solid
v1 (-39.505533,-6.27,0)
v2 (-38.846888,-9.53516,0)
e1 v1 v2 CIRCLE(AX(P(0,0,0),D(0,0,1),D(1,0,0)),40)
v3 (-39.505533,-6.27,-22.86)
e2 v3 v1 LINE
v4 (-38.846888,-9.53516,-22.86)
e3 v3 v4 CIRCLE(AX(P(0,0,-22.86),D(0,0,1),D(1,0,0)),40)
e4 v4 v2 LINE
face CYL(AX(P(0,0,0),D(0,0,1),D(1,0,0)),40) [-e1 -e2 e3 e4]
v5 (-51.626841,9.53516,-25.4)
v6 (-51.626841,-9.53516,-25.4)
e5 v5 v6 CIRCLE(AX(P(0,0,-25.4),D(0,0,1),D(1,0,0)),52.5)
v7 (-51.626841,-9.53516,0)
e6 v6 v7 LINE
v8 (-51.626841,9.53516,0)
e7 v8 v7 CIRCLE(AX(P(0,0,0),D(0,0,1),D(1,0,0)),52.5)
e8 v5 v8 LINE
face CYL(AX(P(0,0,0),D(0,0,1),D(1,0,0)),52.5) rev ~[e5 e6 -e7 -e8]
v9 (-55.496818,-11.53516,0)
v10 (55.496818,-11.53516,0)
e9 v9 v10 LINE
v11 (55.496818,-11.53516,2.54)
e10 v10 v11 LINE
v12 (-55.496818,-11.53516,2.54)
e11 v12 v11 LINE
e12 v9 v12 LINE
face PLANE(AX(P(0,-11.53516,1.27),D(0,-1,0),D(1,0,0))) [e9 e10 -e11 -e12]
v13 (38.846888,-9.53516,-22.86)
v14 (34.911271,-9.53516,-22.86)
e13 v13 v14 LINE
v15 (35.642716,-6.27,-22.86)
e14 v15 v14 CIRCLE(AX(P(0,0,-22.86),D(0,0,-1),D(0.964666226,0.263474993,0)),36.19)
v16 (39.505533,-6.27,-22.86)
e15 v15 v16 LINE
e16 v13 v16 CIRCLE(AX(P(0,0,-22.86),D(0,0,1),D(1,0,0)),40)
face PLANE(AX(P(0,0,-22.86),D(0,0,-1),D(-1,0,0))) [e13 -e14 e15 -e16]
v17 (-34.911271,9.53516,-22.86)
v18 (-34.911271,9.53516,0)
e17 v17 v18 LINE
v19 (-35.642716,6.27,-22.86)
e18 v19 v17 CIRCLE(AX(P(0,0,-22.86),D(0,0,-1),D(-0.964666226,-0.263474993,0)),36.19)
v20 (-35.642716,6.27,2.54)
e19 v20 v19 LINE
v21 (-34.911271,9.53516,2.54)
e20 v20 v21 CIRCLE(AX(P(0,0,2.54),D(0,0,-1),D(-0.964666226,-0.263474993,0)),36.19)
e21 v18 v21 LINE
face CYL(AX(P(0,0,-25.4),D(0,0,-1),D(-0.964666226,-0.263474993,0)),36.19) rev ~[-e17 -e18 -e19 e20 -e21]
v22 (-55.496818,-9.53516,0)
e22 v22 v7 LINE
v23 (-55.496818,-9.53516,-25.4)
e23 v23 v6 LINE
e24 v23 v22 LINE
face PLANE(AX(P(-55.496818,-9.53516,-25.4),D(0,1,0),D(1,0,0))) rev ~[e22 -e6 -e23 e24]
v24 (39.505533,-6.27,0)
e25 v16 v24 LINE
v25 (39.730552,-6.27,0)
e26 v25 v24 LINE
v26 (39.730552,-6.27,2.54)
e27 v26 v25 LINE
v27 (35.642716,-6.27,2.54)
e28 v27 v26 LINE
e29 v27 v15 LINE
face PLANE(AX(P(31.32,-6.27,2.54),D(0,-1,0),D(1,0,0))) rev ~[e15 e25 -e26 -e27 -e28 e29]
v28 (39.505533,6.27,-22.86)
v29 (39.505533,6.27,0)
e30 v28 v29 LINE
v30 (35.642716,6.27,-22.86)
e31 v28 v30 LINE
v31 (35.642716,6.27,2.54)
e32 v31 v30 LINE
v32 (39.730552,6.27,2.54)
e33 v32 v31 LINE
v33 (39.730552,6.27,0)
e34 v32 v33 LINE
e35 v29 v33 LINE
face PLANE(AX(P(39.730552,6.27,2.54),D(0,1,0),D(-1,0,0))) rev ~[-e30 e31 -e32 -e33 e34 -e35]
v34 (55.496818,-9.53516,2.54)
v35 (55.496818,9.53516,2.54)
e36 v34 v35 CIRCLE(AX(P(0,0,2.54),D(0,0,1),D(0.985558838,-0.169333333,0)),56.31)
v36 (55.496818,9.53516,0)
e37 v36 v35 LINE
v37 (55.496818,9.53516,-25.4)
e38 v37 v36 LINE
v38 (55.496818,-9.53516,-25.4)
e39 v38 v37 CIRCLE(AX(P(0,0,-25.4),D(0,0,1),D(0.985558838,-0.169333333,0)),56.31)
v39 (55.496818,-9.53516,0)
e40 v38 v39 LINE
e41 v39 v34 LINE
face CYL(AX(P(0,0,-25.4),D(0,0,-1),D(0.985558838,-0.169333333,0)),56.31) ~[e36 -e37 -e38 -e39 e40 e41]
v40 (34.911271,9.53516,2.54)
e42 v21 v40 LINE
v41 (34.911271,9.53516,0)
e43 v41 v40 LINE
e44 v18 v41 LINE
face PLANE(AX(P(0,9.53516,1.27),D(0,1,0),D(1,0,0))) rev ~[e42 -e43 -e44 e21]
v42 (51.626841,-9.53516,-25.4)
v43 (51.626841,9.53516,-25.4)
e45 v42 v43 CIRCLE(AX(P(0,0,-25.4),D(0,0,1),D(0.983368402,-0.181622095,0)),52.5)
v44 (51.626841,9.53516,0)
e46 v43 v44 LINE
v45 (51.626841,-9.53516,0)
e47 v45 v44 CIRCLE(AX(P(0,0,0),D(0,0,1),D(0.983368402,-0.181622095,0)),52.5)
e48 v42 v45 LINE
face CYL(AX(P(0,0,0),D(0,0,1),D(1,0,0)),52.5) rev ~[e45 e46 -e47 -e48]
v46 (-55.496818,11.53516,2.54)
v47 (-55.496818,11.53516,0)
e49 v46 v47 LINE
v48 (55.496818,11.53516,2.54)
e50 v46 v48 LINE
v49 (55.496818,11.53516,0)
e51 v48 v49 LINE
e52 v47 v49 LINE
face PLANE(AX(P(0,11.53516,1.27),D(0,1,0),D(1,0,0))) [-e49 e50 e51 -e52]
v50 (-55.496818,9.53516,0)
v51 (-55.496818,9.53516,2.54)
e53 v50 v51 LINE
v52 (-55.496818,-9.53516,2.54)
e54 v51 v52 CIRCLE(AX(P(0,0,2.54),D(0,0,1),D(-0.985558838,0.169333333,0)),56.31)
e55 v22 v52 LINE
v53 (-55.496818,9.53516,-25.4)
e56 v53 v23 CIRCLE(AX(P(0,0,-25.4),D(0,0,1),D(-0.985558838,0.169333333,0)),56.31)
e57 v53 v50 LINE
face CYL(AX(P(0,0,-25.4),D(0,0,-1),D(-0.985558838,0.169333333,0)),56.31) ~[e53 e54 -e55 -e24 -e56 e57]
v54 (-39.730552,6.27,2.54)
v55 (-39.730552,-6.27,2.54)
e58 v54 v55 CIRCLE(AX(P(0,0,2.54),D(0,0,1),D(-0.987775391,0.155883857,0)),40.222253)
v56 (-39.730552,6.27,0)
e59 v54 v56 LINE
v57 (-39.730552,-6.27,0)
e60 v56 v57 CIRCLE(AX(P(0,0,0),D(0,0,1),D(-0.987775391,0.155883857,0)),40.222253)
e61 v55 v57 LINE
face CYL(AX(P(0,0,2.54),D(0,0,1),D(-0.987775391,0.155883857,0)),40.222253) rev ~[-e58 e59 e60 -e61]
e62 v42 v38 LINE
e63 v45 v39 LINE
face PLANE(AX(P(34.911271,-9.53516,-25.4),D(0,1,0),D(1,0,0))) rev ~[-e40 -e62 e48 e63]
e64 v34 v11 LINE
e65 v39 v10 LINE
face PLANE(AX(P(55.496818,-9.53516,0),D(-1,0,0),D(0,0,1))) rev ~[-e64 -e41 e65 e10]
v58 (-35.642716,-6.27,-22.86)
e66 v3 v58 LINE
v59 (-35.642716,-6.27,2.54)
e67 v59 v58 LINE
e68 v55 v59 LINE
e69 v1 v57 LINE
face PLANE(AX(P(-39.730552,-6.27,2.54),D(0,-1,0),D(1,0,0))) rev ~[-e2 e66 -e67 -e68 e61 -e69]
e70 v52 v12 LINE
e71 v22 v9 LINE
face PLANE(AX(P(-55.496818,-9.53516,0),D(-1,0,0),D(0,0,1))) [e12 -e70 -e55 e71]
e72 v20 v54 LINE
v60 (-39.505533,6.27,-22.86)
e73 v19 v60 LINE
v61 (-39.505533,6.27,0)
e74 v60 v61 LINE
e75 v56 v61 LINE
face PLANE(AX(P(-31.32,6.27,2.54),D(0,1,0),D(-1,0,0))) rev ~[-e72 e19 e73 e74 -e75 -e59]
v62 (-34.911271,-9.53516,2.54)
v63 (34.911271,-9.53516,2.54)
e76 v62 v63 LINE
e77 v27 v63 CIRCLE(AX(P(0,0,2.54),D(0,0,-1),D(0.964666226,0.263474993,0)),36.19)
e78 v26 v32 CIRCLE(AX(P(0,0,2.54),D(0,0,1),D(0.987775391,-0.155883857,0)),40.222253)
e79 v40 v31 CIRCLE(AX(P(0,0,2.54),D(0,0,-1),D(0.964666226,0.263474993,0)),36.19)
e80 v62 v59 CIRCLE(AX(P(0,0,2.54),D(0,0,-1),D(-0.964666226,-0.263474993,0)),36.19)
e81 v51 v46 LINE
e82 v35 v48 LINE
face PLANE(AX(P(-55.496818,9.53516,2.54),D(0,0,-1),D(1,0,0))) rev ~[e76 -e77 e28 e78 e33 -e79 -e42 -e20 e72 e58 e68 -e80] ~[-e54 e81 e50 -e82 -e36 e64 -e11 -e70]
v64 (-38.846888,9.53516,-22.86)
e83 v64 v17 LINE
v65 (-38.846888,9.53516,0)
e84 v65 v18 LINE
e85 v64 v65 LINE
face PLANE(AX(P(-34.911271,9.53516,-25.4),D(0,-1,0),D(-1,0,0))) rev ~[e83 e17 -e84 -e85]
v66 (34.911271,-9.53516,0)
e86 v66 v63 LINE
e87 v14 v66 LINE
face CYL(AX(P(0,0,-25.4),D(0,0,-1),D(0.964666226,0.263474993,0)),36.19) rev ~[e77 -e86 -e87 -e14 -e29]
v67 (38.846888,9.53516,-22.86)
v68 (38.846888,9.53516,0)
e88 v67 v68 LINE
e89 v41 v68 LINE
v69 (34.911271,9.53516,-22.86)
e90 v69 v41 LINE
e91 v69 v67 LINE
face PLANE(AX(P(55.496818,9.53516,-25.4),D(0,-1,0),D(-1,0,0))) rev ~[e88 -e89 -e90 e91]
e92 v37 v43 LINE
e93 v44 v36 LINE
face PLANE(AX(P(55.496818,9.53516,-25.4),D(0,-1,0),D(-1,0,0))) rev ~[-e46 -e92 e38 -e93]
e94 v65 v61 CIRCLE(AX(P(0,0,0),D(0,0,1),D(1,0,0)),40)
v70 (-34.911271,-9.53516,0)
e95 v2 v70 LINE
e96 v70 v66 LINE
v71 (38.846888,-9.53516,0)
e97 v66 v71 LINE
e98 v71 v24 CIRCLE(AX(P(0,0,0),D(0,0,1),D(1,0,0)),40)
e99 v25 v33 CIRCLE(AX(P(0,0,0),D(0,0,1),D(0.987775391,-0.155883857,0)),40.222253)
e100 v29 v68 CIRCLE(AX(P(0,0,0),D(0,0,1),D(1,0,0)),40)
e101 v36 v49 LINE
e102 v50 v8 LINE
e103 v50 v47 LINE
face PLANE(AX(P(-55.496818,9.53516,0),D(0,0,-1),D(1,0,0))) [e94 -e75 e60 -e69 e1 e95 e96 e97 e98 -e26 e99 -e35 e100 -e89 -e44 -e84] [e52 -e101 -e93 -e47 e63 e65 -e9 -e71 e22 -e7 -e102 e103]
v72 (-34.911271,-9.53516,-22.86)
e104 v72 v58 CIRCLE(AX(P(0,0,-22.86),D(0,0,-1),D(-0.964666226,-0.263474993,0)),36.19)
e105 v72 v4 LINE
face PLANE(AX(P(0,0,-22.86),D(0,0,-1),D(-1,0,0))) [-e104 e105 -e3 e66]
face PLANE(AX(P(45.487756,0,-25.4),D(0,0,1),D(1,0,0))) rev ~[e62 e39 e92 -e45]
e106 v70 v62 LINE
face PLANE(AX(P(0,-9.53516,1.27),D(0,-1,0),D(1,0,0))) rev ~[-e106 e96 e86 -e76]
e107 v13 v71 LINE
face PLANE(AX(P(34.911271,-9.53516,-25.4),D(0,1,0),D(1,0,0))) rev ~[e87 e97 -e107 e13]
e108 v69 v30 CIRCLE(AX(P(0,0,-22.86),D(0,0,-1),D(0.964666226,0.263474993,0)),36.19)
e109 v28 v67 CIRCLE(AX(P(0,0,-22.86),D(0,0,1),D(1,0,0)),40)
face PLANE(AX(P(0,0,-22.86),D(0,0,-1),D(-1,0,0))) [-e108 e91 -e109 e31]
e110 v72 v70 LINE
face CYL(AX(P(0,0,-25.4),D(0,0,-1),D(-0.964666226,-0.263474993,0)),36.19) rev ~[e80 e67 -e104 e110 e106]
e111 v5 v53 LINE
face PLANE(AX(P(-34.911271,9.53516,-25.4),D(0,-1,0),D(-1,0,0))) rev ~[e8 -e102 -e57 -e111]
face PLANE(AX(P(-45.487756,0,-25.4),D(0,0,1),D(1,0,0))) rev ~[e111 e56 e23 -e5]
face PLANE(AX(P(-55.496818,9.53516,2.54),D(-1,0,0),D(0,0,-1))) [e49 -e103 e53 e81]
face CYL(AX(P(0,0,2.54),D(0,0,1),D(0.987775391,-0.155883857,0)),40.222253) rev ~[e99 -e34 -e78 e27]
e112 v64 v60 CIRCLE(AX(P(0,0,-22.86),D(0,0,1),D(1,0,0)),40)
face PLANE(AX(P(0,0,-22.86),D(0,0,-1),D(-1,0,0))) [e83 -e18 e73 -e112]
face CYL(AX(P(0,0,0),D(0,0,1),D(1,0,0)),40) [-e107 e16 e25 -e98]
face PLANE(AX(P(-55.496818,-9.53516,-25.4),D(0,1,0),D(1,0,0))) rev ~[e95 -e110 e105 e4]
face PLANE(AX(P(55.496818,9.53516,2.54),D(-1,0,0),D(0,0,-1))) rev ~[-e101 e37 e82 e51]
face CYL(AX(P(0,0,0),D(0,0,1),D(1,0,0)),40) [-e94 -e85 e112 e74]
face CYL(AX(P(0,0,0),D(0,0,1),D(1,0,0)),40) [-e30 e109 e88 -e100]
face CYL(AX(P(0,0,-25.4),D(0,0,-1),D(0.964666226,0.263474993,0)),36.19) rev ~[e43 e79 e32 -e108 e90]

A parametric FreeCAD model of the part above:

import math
import FreeCAD as App
import Part
import Sketcher

V = App.Vector


def add_polygon(sketch, points):
    """Adds a closed chain of lines whose ends are joined by coincident constraints."""
    first, n = sketch.GeometryCount, len(points)
    for a, b in zip(points, points[1:] + points[:1]):
        sketch.addGeometry(Part.LineSegment(App.Vector(*a, 0), App.Vector(*b, 0)), False)
    for i in range(n):
        sketch.addConstraint(Sketcher.Constraint("Coincident", first + i, 2, first + (i + 1) % n, 1))

doc = App.newDocument("Part")
body = doc.addObject("PartDesign::Body", "Body")

sketch1 = doc.addObject("Sketcher::SketchObject", "Sketch")
body.addObject(sketch1)
sketch1.AttachmentSupport = (doc.XY_Plane, [""])
sketch1.MapMode = "FlatFace"
sketch1.addGeometry(Part.LineSegment(V(-55, -10, 0), V(-35, -10, 0)), False)
sketch1.addGeometry(Part.ArcOfCircle(Part.Circle(V(0, 0, 0), V(0, 0, 1), 36), math.radians(165), math.radians(195)), False)
sketch1.addGeometry(Part.LineSegment(V(-35, 10, 0), V(-55, 10, 0)), False)
sketch1.addGeometry(Part.ArcOfCircle(Part.Circle(V(0, 0, 0), V(0, 0, 1), 56), math.radians(170.25), math.radians(189.75)), False)
sketch1.addConstraint(Sketcher.Constraint("Coincident", 0, 2, 1, 2))
sketch1.addConstraint(Sketcher.Constraint("Coincident", 1, 1, 2, 1))
sketch1.addConstraint(Sketcher.Constraint("Coincident", 2, 2, 3, 1))
sketch1.addConstraint(Sketcher.Constraint("Coincident", 3, 2, 0, 1))
sketch1.addConstraint(Sketcher.Constraint("Horizontal", 0))
sketch1.addConstraint(Sketcher.Constraint("Horizontal", 2))
sketch1.addConstraint(Sketcher.Constraint("Coincident", 1, 3, -1, 1))
sketch1.addConstraint(Sketcher.Constraint("Coincident", 3, 3, -1, 1))
sketch1.addConstraint(Sketcher.Constraint("Vertical", 0, 2, 1, 1))
sketch1.addConstraint(Sketcher.Constraint("Radius", 1, 36.19))
sketch1.addConstraint(Sketcher.Constraint("Radius", 3, 56.31))
sketch1.addConstraint(Sketcher.Constraint("DistanceX", 0, 1, 0, 2, 20.585547))
pad1 = doc.addObject("PartDesign::Pad", "Pad")
body.addObject(pad1)
pad1.Profile = sketch1
pad1.Type = "TwoLengths"
pad1.Length = 2.54
pad1.Length2 = 25.4
body2 = doc.addObject("PartDesign::Body", "Body001")

sketch2 = doc.addObject("Sketcher::SketchObject", "Sketch001")
body2.addObject(sketch2)
sketch2.AttachmentSupport = (doc.getObject("XY_Plane001"), [""])
sketch2.MapMode = "FlatFace"
sketch2.addGeometry(Part.LineSegment(V(55, 10, 0), V(35, 10, 0)), False)
sketch2.addGeometry(Part.ArcOfCircle(Part.Circle(V(0, 0, 0), V(0, 0, 1), 36), math.radians(-15), math.radians(15)), False)
sketch2.addGeometry(Part.LineSegment(V(35, -10, 0), V(55, -10, 0)), False)
sketch2.addGeometry(Part.ArcOfCircle(Part.Circle(V(0, 0, 0), V(0, 0, 1), 56), math.radians(-9.75), math.radians(9.75)), False)
sketch2.addConstraint(Sketcher.Constraint("Coincident", 0, 2, 1, 2))
sketch2.addConstraint(Sketcher.Constraint("Coincident", 1, 1, 2, 1))
sketch2.addConstraint(Sketcher.Constraint("Coincident", 2, 2, 3, 1))
sketch2.addConstraint(Sketcher.Constraint("Coincident", 3, 2, 0, 1))
sketch2.addConstraint(Sketcher.Constraint("Horizontal", 0))
sketch2.addConstraint(Sketcher.Constraint("Horizontal", 2))
sketch2.addConstraint(Sketcher.Constraint("Coincident", 1, 3, -1, 1))
sketch2.addConstraint(Sketcher.Constraint("Coincident", 3, 3, -1, 1))
sketch2.addConstraint(Sketcher.Constraint("Vertical", 0, 2, 1, 1))
sketch2.addConstraint(Sketcher.Constraint("Radius", 1, 36.19))
sketch2.addConstraint(Sketcher.Constraint("Radius", 3, 56.31))
sketch2.addConstraint(Sketcher.Constraint("DistanceX", 0, 2, 0, 1, 20.585547))
pad2 = doc.addObject("PartDesign::Pad", "Pad001")
body2.addObject(pad2)
pad2.Profile = sketch2
pad2.Type = "TwoLengths"
pad2.Length = 2.54
pad2.Length2 = 25.4
body3 = doc.addObject("PartDesign::Body", "Body002")
body3.AllowCompound = True

sketch3 = doc.addObject("Sketcher::SketchObject", "Sketch002")
body3.addObject(sketch3)
sketch3.AttachmentSupport = (doc.getObject("XY_Plane002"), [""])
sketch3.MapMode = "FlatFace"
sketch3.AttachmentOffset = App.Placement(V(0, 0, 2.54), App.Rotation())
sketch3.addGeometry(Part.LineSegment(V(40, 6, 0), V(31, 6, 0)), False)
sketch3.addGeometry(Part.ArcOfCircle(Part.Circle(V(0, 0, 0), V(0, 0, 1), 32), math.radians(-11), math.radians(11)), False)
sketch3.addGeometry(Part.LineSegment(V(31, -6, 0), V(40, -6, 0)), False)
sketch3.addGeometry(Part.ArcOfCircle(Part.Circle(V(0, 0, 0), V(0, 0, 1), 40), math.radians(-8.97), math.radians(8.97)), False)
sketch3.addGeometry(Part.LineSegment(V(-31, 6, 0), V(-40, 6, 0)), False)
sketch3.addGeometry(Part.ArcOfCircle(Part.Circle(V(0, 0, 0), V(0, 0, 1), 40), math.radians(171.03), math.radians(188.97)), False)
sketch3.addGeometry(Part.LineSegment(V(-40, -6, 0), V(-31, -6, 0)), False)
sketch3.addGeometry(Part.ArcOfCircle(Part.Circle(V(0, 0, 0), V(0, 0, 1), 32), math.radians(169), math.radians(191)), False)
sketch3.addConstraint(Sketcher.Constraint("Coincident", 0, 2, 1, 2))
sketch3.addConstraint(Sketcher.Constraint("Coincident", 1, 1, 2, 1))
sketch3.addConstraint(Sketcher.Constraint("Coincident", 2, 2, 3, 1))
sketch3.addConstraint(Sketcher.Constraint("Coincident", 3, 2, 0, 1))
sketch3.addConstraint(Sketcher.Constraint("Coincident", 4, 2, 5, 1))
sketch3.addConstraint(Sketcher.Constraint("Coincident", 5, 2, 6, 1))
sketch3.addConstraint(Sketcher.Constraint("Coincident", 6, 2, 7, 2))
sketch3.addConstraint(Sketcher.Constraint("Coincident", 7, 1, 4, 1))
sketch3.addConstraint(Sketcher.Constraint("Horizontal", 0))
sketch3.addConstraint(Sketcher.Constraint("Horizontal", 2))
sketch3.addConstraint(Sketcher.Constraint("Horizontal", 4))
sketch3.addConstraint(Sketcher.Constraint("Horizontal", 6))
sketch3.addConstraint(Sketcher.Constraint("Coincident", 1, 3, -1, 1))
sketch3.addConstraint(Sketcher.Constraint("Coincident", 3, 3, -1, 1))
sketch3.addConstraint(Sketcher.Constraint("Coincident", 5, 3, -1, 1))
sketch3.addConstraint(Sketcher.Constraint("Coincident", 7, 3, -1, 1))
sketch3.addConstraint(Sketcher.Constraint("Equal", 3, 5))
sketch3.addConstraint(Sketcher.Constraint("Equal", 1, 7))
sketch3.addConstraint(Sketcher.Constraint("Horizontal", 3, 2, 4, 2))
sketch3.addConstraint(Sketcher.Constraint("Horizontal", 2, 2, 5, 2))
sketch3.addConstraint(Sketcher.Constraint("Vertical", 0, 2, 1, 1))
sketch3.addConstraint(Sketcher.Constraint("DistanceX", -1, 1, 0, 2, 31.32))
sketch3.addConstraint(Sketcher.Constraint("DistanceY", -1, 1, 0, 2, 6.27))
sketch3.addConstraint(Sketcher.Constraint("Radius", 3, 40.222253))
pad3 = doc.addObject("PartDesign::Pad", "Pad002")
body3.addObject(pad3)
pad3.Profile = sketch3
pad3.Length = 38.1
pad3.Reversed = True
doc.recompute()

body4 = doc.addObject("PartDesign::Body", "Body003")
body4.BaseFeature = body3
boolean = doc.addObject("PartDesign::Boolean", "Boolean")
body.addObject(boolean)
boolean.Type = "Cut"
boolean.addObjects([body4])
doc.recompute()

boolean2 = doc.addObject("PartDesign::Boolean", "Boolean001")
body2.addObject(boolean2)
boolean2.Type = "Cut"
boolean2.addObjects([body3])
body5 = doc.addObject("PartDesign::Body", "Body004")

sketch4 = doc.addObject("Sketcher::SketchObject", "Sketch003")
body5.addObject(sketch4)
sketch4.AttachmentSupport = (doc.getObject("XY_Plane004"), [""])
sketch4.MapMode = "FlatFace"
sketch4.addGeometry(Part.Circle(V(0, 0, 0), V(0, 0, 1), 52), False)
sketch4.addGeometry(Part.Circle(V(0, 0, 0), V(0, 0, 1), 40), False)
sketch4.addConstraint(Sketcher.Constraint("Coincident", 0, 3, -1, 1))
sketch4.addConstraint(Sketcher.Constraint("Coincident", 1, 3, -1, 1))
sketch4.addConstraint(Sketcher.Constraint("Diameter", 0, 105.0))
sketch4.addConstraint(Sketcher.Constraint("Diameter", 1, 80.0))
pad4 = doc.addObject("PartDesign::Pad", "Pad003")
body5.addObject(pad4)
pad4.Profile = sketch4
pad4.Length = 63.505163
pad4.Reversed = True
doc.recompute()

body6 = doc.addObject("PartDesign::Body", "Body005")
body6.BaseFeature = body5
boolean3 = doc.addObject("PartDesign::Boolean", "Boolean002")
body.addObject(boolean3)
boolean3.Type = "Cut"
boolean3.addObjects([body6])
doc.recompute()

boolean4 = doc.addObject("PartDesign::Boolean", "Boolean003")
body2.addObject(boolean4)
boolean4.Type = "Cut"
boolean4.addObjects([body5])
body.AllowCompound = True
doc.recompute()

boolean5 = doc.addObject("PartDesign::Boolean", "Boolean004")
body.addObject(boolean5)
boolean5.Type = "Fuse"
boolean5.addObjects([body2])

sketch5 = doc.addObject("Sketcher::SketchObject", "Sketch004")
body.addObject(sketch5)
sketch5.AttachmentSupport = (doc.XZ_Plane, [""])
sketch5.MapMode = "FlatFace"
sketch5.AttachmentOffset = App.Placement(V(0, 0, 9.53516), App.Rotation())
add_polygon(sketch5, [(-55.5, 2.5), (-55.5, 0), (55.5, 0), (55.5, 2.5)])
sketch5.addConstraint(Sketcher.Constraint("Vertical", 0))
sketch5.addConstraint(Sketcher.Constraint("Horizontal", 1))
sketch5.addConstraint(Sketcher.Constraint("Vertical", 2))
sketch5.addConstraint(Sketcher.Constraint("Horizontal", 3))
sketch5.addConstraint(Sketcher.Constraint("Symmetric", 0, 2, 1, 2, -1, 1))
sketch5.addConstraint(Sketcher.Constraint("DistanceY", 0, 2, 0, 1, 2.54))
sketch5.addConstraint(Sketcher.Constraint("DistanceX", 1, 1, 1, 2, 110.993636))
pad5 = doc.addObject("PartDesign::Pad", "Pad004")
body.addObject(pad5)
pad5.Profile = sketch5
pad5.Length = 2

sketch6 = doc.addObject("Sketcher::SketchObject", "Sketch005")
body.addObject(sketch6)
sketch6.AttachmentSupport = (doc.XZ_Plane, [""])
sketch6.MapMode = "FlatFace"
sketch6.AttachmentOffset = App.Placement(V(0, 0, -9.53516), App.Rotation())
add_polygon(sketch6, [(-55.5, 0), (-55.5, 2.5), (55.5, 2.5), (55.5, 0)])
sketch6.addConstraint(Sketcher.Constraint("Vertical", 0))
sketch6.addConstraint(Sketcher.Constraint("Horizontal", 1))
sketch6.addConstraint(Sketcher.Constraint("Vertical", 2))
sketch6.addConstraint(Sketcher.Constraint("Horizontal", 3))
sketch6.addConstraint(Sketcher.Constraint("Symmetric", 2, 2, 3, 2, -1, 1))
sketch6.addConstraint(Sketcher.Constraint("DistanceY", 0, 1, 0, 2, 2.54))
sketch6.addConstraint(Sketcher.Constraint("DistanceX", 1, 1, 1, 2, 110.993636))
pad6 = doc.addObject("PartDesign::Pad", "Pad005")
body.addObject(pad6)
pad6.Profile = sketch6
pad6.Length = 2
pad6.Reversed = True

sketch7 = doc.addObject("Sketcher::SketchObject", "Sketch006")
body.addObject(sketch7)
sketch7.AttachmentSupport = (doc.XY_Plane, [""])
sketch7.MapMode = "FlatFace"
sketch7.AttachmentOffset = App.Placement(V(0, 0, -25.4), App.Rotation())
add_polygon(sketch7, [(43, 21), (43, -21), (-43, -21), (-43, 21)])
sketch7.addConstraint(Sketcher.Constraint("Vertical", 0))
sketch7.addConstraint(Sketcher.Constraint("Horizontal", 1))
sketch7.addConstraint(Sketcher.Constraint("Vertical", 2))
sketch7.addConstraint(Sketcher.Constraint("Horizontal", 3))
sketch7.addConstraint(Sketcher.Constraint("Symmetric", 0, 2, 2, 2, -1, 1))
sketch7.addConstraint(Sketcher.Constraint("DistanceX", 1, 2, 1, 1, 85.61293))
sketch7.addConstraint(Sketcher.Constraint("DistanceY", 0, 2, 0, 1, 41.208357))
pocket1 = doc.addObject("PartDesign::Pocket", "Pocket")
body.addObject(pocket1)
pocket1.Profile = sketch7
pocket1.Length = 2.54
pocket1.Reversed = True

doc.recompute()
